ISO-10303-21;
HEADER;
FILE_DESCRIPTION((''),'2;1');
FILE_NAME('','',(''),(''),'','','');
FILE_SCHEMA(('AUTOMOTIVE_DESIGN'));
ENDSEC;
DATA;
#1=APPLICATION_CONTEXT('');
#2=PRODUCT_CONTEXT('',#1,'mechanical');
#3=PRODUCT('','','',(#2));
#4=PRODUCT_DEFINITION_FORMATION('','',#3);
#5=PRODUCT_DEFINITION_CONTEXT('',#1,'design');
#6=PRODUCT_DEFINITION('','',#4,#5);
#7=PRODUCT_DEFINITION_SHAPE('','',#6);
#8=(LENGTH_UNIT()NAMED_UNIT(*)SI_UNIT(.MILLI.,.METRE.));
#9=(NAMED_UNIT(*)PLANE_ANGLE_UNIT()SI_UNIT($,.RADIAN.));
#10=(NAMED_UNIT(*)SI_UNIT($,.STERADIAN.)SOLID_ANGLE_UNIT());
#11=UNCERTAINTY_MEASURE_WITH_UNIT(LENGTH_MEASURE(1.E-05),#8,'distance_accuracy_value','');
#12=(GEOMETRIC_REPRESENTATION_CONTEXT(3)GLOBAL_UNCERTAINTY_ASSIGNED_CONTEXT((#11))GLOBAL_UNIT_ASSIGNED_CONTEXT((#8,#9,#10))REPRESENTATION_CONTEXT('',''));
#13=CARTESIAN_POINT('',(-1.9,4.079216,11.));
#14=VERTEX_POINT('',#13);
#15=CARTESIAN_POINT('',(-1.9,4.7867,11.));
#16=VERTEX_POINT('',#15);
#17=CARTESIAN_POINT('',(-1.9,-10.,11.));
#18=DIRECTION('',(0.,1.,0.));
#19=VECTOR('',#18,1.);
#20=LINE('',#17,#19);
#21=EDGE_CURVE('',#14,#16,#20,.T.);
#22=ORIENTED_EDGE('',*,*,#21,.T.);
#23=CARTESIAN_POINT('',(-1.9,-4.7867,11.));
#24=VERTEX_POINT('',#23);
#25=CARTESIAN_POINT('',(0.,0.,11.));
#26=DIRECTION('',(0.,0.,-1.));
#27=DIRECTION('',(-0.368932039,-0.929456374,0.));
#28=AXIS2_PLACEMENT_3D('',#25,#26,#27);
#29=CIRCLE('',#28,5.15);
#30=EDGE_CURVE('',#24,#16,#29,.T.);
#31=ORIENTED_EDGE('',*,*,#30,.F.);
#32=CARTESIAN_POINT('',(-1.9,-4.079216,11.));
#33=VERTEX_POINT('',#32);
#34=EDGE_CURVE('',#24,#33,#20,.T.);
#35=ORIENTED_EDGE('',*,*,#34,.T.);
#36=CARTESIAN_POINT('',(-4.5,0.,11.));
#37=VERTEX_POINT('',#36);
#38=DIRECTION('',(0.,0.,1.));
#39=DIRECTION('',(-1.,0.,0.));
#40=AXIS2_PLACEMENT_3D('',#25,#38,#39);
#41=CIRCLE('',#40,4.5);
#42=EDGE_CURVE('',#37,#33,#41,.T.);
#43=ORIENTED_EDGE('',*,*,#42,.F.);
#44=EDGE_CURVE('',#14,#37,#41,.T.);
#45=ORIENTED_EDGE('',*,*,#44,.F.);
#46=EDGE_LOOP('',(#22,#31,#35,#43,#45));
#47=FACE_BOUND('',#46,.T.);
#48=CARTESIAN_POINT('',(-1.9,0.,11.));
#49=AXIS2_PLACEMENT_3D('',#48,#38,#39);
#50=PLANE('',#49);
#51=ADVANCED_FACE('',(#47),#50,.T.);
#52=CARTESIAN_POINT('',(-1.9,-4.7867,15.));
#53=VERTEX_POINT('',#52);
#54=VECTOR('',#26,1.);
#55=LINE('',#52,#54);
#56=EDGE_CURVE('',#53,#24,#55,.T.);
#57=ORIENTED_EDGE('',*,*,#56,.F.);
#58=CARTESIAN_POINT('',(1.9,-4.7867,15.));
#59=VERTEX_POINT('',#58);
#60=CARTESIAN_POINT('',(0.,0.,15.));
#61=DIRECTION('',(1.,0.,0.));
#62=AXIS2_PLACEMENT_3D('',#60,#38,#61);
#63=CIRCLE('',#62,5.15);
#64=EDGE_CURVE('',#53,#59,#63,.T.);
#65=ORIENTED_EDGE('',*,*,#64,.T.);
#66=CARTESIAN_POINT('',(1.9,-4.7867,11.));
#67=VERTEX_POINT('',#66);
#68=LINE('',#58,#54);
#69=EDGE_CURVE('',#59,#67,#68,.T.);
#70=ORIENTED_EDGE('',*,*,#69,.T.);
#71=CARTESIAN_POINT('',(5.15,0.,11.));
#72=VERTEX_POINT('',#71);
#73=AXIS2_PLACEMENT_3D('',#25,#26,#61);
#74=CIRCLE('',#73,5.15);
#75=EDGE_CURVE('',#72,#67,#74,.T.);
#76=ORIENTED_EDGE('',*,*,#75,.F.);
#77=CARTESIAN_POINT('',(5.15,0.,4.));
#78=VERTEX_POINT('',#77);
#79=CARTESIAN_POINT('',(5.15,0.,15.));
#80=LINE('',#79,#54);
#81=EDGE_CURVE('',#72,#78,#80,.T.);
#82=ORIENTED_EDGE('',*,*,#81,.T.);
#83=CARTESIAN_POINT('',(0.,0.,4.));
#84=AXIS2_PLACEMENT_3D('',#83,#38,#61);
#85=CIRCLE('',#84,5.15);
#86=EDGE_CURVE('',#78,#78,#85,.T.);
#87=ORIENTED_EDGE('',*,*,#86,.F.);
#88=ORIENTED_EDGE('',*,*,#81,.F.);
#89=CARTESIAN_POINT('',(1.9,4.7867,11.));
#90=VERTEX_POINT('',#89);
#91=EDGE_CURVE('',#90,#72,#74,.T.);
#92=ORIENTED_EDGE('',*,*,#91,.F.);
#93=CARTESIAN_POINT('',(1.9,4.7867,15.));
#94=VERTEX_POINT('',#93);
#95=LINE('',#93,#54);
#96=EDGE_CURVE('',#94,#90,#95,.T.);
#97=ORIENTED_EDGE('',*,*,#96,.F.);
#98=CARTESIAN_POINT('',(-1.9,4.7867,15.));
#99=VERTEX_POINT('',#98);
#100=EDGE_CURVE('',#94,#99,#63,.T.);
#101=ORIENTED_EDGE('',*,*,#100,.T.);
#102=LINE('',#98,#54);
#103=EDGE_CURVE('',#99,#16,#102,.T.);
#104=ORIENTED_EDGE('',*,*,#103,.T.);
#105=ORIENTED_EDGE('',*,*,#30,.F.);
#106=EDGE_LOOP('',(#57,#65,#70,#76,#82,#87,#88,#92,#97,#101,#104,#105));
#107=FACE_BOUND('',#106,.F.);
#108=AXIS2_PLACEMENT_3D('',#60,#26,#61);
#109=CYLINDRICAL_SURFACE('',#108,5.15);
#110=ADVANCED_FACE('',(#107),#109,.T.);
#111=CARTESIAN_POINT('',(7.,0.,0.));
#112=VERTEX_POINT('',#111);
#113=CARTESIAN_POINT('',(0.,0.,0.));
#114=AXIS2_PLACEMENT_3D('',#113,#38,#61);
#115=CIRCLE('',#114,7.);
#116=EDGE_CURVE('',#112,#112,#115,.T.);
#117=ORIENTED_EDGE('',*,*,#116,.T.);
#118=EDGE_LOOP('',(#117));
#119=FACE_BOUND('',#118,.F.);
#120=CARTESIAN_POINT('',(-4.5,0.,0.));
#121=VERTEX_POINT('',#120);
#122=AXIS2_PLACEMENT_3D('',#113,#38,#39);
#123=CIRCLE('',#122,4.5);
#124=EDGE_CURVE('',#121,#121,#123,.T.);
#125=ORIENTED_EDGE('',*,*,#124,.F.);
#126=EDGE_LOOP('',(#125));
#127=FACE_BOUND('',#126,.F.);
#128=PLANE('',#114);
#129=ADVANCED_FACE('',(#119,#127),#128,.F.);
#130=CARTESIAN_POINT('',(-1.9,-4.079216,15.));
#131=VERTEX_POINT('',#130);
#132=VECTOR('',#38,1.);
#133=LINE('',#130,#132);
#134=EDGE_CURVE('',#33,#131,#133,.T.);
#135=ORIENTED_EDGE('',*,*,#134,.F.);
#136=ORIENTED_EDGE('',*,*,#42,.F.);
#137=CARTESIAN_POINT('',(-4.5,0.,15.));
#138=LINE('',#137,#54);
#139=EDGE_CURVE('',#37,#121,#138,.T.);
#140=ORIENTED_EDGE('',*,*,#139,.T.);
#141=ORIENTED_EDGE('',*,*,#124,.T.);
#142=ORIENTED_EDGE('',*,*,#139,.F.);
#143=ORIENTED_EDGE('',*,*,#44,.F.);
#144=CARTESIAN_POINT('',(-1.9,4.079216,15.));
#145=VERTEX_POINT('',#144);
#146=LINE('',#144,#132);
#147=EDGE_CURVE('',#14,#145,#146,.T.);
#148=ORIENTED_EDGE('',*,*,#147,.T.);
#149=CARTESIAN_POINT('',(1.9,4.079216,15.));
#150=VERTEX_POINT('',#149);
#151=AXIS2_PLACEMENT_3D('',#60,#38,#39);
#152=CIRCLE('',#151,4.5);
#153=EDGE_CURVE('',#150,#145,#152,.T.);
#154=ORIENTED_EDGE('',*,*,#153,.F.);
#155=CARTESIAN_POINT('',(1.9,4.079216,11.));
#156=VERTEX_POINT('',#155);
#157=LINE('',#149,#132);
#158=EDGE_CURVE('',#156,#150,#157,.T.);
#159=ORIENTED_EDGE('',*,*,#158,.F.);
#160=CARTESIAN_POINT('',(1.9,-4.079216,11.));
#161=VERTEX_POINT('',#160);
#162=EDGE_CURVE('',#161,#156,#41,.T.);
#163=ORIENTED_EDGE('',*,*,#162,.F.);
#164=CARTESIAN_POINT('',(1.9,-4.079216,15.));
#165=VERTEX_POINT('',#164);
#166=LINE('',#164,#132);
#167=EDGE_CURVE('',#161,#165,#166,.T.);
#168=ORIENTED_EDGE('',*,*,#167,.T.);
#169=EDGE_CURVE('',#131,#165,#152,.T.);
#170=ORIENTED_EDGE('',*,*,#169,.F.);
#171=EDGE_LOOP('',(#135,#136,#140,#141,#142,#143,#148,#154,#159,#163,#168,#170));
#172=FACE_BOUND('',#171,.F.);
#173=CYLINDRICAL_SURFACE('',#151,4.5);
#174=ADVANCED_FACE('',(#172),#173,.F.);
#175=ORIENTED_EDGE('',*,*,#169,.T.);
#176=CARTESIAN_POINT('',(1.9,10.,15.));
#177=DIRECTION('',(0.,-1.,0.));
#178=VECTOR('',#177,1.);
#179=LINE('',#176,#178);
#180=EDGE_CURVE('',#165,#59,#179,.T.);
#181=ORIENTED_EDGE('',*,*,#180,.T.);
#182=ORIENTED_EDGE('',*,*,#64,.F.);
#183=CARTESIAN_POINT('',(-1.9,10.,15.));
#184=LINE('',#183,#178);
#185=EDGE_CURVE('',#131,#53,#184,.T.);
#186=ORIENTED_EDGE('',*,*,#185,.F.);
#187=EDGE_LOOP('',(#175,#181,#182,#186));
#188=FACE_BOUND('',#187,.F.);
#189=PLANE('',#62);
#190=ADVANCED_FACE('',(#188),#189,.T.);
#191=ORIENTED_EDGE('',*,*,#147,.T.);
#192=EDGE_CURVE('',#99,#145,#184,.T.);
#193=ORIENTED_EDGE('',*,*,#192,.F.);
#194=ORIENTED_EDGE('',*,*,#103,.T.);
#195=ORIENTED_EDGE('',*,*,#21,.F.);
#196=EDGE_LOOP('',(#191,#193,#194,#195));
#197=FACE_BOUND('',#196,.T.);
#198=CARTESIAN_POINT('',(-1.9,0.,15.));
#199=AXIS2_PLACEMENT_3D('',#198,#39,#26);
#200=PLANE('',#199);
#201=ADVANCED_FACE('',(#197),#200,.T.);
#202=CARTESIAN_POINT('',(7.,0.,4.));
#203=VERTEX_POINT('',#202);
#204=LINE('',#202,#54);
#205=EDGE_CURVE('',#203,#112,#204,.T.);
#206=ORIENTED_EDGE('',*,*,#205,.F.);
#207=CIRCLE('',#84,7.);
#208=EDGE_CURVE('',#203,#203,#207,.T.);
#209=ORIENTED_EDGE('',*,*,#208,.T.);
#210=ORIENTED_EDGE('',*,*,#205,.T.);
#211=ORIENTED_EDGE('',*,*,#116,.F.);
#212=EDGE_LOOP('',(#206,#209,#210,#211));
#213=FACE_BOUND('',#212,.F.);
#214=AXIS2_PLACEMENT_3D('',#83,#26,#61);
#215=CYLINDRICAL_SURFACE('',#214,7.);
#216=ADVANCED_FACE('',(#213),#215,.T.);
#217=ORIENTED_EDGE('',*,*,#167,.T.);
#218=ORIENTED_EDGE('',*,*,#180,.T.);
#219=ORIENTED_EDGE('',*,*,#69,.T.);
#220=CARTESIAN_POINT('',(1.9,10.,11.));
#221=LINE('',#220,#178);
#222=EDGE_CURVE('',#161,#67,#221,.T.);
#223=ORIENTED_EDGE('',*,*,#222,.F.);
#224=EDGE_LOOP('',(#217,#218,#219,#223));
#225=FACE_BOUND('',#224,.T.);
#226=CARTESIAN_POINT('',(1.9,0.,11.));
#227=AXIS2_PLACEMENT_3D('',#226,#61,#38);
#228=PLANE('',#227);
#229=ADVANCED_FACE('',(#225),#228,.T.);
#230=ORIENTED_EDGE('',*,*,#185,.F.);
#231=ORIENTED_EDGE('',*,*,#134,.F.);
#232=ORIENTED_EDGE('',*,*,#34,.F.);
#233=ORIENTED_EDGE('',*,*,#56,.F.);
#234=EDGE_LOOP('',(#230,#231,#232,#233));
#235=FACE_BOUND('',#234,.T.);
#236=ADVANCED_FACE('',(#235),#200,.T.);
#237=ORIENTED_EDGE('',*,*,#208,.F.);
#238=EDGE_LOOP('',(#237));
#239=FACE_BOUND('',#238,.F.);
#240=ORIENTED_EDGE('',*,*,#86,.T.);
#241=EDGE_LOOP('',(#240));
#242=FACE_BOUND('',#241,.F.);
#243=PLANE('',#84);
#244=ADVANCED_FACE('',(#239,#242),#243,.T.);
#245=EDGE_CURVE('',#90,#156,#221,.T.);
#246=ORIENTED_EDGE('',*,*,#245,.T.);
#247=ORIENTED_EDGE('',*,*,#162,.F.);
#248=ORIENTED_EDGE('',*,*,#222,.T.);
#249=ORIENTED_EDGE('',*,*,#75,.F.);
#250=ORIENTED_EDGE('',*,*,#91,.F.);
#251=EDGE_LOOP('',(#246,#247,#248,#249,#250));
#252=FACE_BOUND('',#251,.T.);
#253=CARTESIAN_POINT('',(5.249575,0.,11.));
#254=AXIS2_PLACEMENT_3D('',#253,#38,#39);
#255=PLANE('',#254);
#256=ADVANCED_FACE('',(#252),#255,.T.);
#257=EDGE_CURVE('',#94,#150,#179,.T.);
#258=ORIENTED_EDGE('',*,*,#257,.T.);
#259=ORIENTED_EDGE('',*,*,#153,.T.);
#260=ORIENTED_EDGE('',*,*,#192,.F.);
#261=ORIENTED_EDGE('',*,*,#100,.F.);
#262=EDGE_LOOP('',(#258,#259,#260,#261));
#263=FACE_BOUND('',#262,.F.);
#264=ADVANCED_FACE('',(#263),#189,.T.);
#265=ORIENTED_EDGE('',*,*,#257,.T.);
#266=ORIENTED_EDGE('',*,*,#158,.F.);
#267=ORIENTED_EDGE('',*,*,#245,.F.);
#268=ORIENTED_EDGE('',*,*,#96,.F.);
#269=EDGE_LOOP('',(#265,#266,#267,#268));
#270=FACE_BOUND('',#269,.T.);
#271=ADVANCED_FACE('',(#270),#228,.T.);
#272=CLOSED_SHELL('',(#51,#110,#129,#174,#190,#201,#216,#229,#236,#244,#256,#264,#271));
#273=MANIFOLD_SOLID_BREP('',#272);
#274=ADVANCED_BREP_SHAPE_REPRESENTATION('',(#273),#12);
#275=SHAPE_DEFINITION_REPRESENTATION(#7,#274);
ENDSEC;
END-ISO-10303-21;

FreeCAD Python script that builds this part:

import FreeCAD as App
import Part
import Sketcher

V = App.Vector
Q = App.Units.Quantity

doc = App.newDocument("Part")
body = doc.addObject("PartDesign::Body", "Body")

# Sketch on XZ plane
sketch1 = body.newObject("Sketcher::SketchObject", "Sketch")
sketch1.AttachmentSupport = (doc.getObject("XZ_Plane"), [""])
sketch1.MapMode = "FlatFace"
sketch1.addGeometry([
    Part.LineSegment(V(0, 15, 0), V(0, 0, 0)),  # 0
    Part.LineSegment(V(0, 0, 0), V(7, 0, 0)),  # 1
    Part.LineSegment(V(7, 0, 0), V(7, 4, 0)),  # 2
    Part.LineSegment(V(7, 4, 0), V(5.2, 4, 0)),  # 3
    Part.LineSegment(V(5.2, 4, 0), V(5.2, 15, 0)),  # 4
    Part.LineSegment(V(5.2, 15, 0), V(0, 15, 0)),  # 5
], False)
sketch1.addConstraint([
    Sketcher.Constraint("Coincident", 0, 2, 1, 1),
    Sketcher.Constraint("Coincident", 1, 2, 2, 1),
    Sketcher.Constraint("Coincident", 2, 2, 3, 1),
    Sketcher.Constraint("Coincident", 3, 2, 4, 1),
    Sketcher.Constraint("Coincident", 4, 2, 5, 1),
    Sketcher.Constraint("Coincident", 5, 2, 0, 1),
    Sketcher.Constraint("Vertical", 0),
    Sketcher.Constraint("Horizontal", 1),
    Sketcher.Constraint("Vertical", 2),
    Sketcher.Constraint("Horizontal", 3),
    Sketcher.Constraint("Vertical", 4),
    Sketcher.Constraint("Horizontal", 5),
    Sketcher.Constraint("Coincident", 0, 2, -1, 1),
    Sketcher.Constraint("DistanceX", 1, 1, 1, 2, Q("7 mm")),
    Sketcher.Constraint("DistanceY", 0, 2, 0, 1, Q("15 mm")),
    Sketcher.Constraint("DistanceY", 2, 1, 2, 2, Q("4 mm")),
    Sketcher.Constraint("DistanceX", 3, 2, 3, 1, Q("1.85 mm")),
])
revolution = body.newObject("PartDesign::Revolution", "Revolution")
revolution.Profile = sketch1
revolution.ReferenceAxis = (sketch1, ["V_Axis"])
revolution.Angle = 360

# Sketch on XY plane
sketch2 = body.newObject("Sketcher::SketchObject", "Sketch001")
sketch2.AttachmentSupport = (doc.getObject("XY_Plane"), [""])
sketch2.MapMode = "FlatFace"
sketch2.AttachmentOffset = App.Placement(V(0, 0, 15), App.Rotation())
sketch2.addGeometry(Part.Circle(V(0, 0, 0), V(0, 0, 1), 4.5), False)
sketch2.addConstraint([
    Sketcher.Constraint("Coincident", 0, 3, -1, 1),
    Sketcher.Constraint("Diameter", 0, Q("9 mm")),
])
pocket1 = body.newObject("PartDesign::Pocket", "Pocket")
pocket1.Profile = sketch2
pocket1.Length = 25

# Sketch on XZ plane
sketch3 = body.newObject("Sketcher::SketchObject", "Sketch002")
sketch3.AttachmentSupport = (doc.getObject("XZ_Plane"), [""])
sketch3.MapMode = "FlatFace"
sketch3.addGeometry([
    Part.LineSegment(V(-1.9, 11, 0), V(-1.9, 15, 0)),  # 0
    Part.LineSegment(V(-1.9, 15, 0), V(1.9, 15, 0)),  # 1
    Part.LineSegment(V(1.9, 15, 0), V(1.9, 11, 0)),  # 2
    Part.LineSegment(V(1.9, 11, 0), V(5.2, 11, 0)),  # 3
    Part.LineSegment(V(5.2, 11, 0), V(5.2, 18.5, 0)),  # 4
    Part.LineSegment(V(5.2, 18.5, 0), V(-5.2, 18.5, 0)),  # 5
    Part.LineSegment(V(-5.2, 18.5, 0), V(-5.2, 11, 0)),  # 6
    Part.LineSegment(V(-5.2, 11, 0), V(-1.9, 11, 0)),  # 7
], False)
sketch3.addConstraint([
    Sketcher.Constraint("Coincident", 0, 2, 1, 1),
    Sketcher.Constraint("Coincident", 1, 2, 2, 1),
    Sketcher.Constraint("Coincident", 2, 2, 3, 1),
    Sketcher.Constraint("Coincident", 3, 2, 4, 1),
    Sketcher.Constraint("Coincident", 4, 2, 5, 1),
    Sketcher.Constraint("Coincident", 5, 2, 6, 1),
    Sketcher.Constraint("Coincident", 6, 2, 7, 1),
    Sketcher.Constraint("Coincident", 7, 2, 0, 1),
    Sketcher.Constraint("Vertical", 0),
    Sketcher.Constraint("Horizontal", 1),
    Sketcher.Constraint("Vertical", 2),
    Sketcher.Constraint("Horizontal", 3),
    Sketcher.Constraint("Vertical", 4),
    Sketcher.Constraint("Horizontal", 5),
    Sketcher.Constraint("Vertical", 6),
    Sketcher.Constraint("Horizontal", 7),
    Sketcher.Constraint("Symmetric", 2, 2, 7, 2, -2),
    Sketcher.Constraint("DistanceY", 0, 1, 0, 2, Q("4 mm")),
    Sketcher.Constraint("DistanceX", 1, 1, 1, 2, Q("3.8 mm")),
    Sketcher.Constraint("DistanceY", -1, 1, 0, 2, Q("15 mm")),
    Sketcher.Constraint("DistanceX", 7, 1, 7, 2, Q("3.25 mm")),
    Sketcher.Constraint("DistanceY", 4, 1, 4, 2, Q("7.504541 mm")),
    Sketcher.Constraint("DistanceX", 3, 1, 3, 2, Q("3.349575 mm")),
])
pocket2 = body.newObject("PartDesign::Pocket", "Pocket001")
pocket2.Profile = sketch3
pocket2.Length = 20
pocket2.Midplane = True

doc.recompute()
